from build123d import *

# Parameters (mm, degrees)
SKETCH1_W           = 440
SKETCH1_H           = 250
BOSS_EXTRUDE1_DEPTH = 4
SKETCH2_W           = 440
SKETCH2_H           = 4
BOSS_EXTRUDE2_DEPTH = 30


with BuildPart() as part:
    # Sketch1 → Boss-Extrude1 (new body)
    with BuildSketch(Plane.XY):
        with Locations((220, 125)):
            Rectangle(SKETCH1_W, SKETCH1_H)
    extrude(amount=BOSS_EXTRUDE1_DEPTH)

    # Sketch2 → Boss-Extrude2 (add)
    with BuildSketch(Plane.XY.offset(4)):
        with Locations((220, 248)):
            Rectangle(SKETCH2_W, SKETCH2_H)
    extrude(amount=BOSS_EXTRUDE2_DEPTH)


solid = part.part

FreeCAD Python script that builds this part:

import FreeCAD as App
import Part
import Sketcher


def add_polygon(sketch, points):
    """Adds a closed chain of lines whose ends are joined by coincident constraints."""
    first, n = sketch.GeometryCount, len(points)
    for a, b in zip(points, points[1:] + points[:1]):
        sketch.addGeometry(Part.LineSegment(App.Vector(*a, 0), App.Vector(*b, 0)), False)
    for i in range(n):
        sketch.addConstraint(Sketcher.Constraint("Coincident", first + i, 2, first + (i + 1) % n, 1))

doc = App.newDocument("Part")
body = doc.addObject("PartDesign::Body", "Body")

sketch1 = body.newObject("Sketcher::SketchObject", "Sketch")
sketch1.AttachmentSupport = (doc.getObject("XY_Plane"), [""])
sketch1.MapMode = "FlatFace"
add_polygon(sketch1, [(0, 250), (0, 0), (440, 0), (440, 250)])
sketch1.addConstraint([
    Sketcher.Constraint("Vertical", 0),
    Sketcher.Constraint("Horizontal", 1),
    Sketcher.Constraint("Vertical", 2),
    Sketcher.Constraint("Horizontal", 3),
    Sketcher.Constraint("Coincident", 0, 2, -1, 1),
    Sketcher.Constraint("DistanceX", 1, 1, 1, 2, 440.0),
    Sketcher.Constraint("DistanceY", 0, 2, 0, 1, 250.0),
])
pad1 = body.newObject("PartDesign::Pad", "Pad")
pad1.Profile = sketch1
pad1.Length = 4

sketch2 = body.newObject("Sketcher::SketchObject", "Sketch001")
sketch2.AttachmentSupport = (doc.getObject("XY_Plane"), [""])
sketch2.MapMode = "FlatFace"
sketch2.AttachmentOffset = App.Placement(App.Vector(0, 0, 4), App.Rotation())
add_polygon(sketch2, [(0, 250), (0, 246), (440, 246), (440, 250)])
sketch2.addConstraint([
    Sketcher.Constraint("Vertical", 0),
    Sketcher.Constraint("Horizontal", 1),
    Sketcher.Constraint("Vertical", 2),
    Sketcher.Constraint("Horizontal", 3),
    Sketcher.Constraint("PointOnObject", 0, 2, -2),
    Sketcher.Constraint("DistanceX", 1, 1, 1, 2, 440.0),
    Sketcher.Constraint("DistanceY", 0, 2, 0, 1, 4.0),
    Sketcher.Constraint("DistanceY", -1, 1, 0, 2, 246.0),
])
pad2 = body.newObject("PartDesign::Pad", "Pad001")
pad2.Profile = sketch2
pad2.Length = 30

doc.recompute()
